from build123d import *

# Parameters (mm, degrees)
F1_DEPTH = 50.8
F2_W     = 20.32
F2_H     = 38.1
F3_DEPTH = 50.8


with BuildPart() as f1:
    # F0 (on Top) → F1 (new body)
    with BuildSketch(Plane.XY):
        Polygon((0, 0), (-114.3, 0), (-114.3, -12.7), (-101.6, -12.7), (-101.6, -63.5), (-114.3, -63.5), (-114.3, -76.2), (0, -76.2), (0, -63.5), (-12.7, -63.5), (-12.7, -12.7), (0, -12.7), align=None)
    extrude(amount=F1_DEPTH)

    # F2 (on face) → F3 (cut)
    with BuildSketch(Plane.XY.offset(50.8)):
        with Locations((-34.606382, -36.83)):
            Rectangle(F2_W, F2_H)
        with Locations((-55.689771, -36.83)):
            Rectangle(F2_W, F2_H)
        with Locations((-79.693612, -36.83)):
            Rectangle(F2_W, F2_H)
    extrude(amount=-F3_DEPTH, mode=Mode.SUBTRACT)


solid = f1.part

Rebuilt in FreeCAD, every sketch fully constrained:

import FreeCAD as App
import Part
import Sketcher
from FreeCAD import Vector
Q = App.Units.Quantity

doc = App.newDocument("Part")
params = doc.addObject("Spreadsheet::Sheet", "Params")
for row, (alias, value) in enumerate([
    ("sketch1_height", "2 in"),
    ("sketch1_width", "4.5 in"),
    ("sketch1_width2", "0.5 in"),
    ("pad1_length", "2 in"),
    ("sketch2_width", "0.8 in"),
    ("sketch2_height", "1.5 in"),
    ("pocket1_length", "2 in"),
], start=1):
    params.set(f"A{row}", alias)
    params.set(f"B{row}", "=" + value)
    params.setAlias(f"B{row}", alias)

body = doc.addObject("PartDesign::Body", "Body")

# Sketch on XY plane
sketch1 = body.newObject("Sketcher::SketchObject", "Sketch")
sketch1.AttachmentSupport = (doc.getObject("XY_Plane"), [""])
sketch1.MapMode = "FlatFace"
sketch1.addGeometry([
    Part.LineSegment(Vector(0, 0, 0), Vector(-114, 0, 0)),  # 0
    Part.LineSegment(Vector(-114, 0, 0), Vector(-114, -13, 0)),  # 1
    Part.LineSegment(Vector(-114, -13, 0), Vector(-102, -13, 0)),  # 2
    Part.LineSegment(Vector(-102, -13, 0), Vector(-102, -64, 0)),  # 3
    Part.LineSegment(Vector(-102, -64, 0), Vector(-114, -64, 0)),  # 4
    Part.LineSegment(Vector(-114, -64, 0), Vector(-114, -76, 0)),  # 5
    Part.LineSegment(Vector(-114, -76, 0), Vector(0, -76, 0)),  # 6
    Part.LineSegment(Vector(0, -76, 0), Vector(0, -64, 0)),  # 7
    Part.LineSegment(Vector(0, -64, 0), Vector(-13, -64, 0)),  # 8
    Part.LineSegment(Vector(-13, -64, 0), Vector(-13, -13, 0)),  # 9
    Part.LineSegment(Vector(-13, -13, 0), Vector(0, -13, 0)),  # 10
    Part.LineSegment(Vector(0, -13, 0), Vector(0, 0, 0)),  # 11
], False)
sketch1.addConstraint([
    Sketcher.Constraint("Coincident", 0, 2, 1, 1),
    Sketcher.Constraint("Coincident", 1, 2, 2, 1),
    Sketcher.Constraint("Coincident", 2, 2, 3, 1),
    Sketcher.Constraint("Coincident", 3, 2, 4, 1),
    Sketcher.Constraint("Coincident", 4, 2, 5, 1),
    Sketcher.Constraint("Coincident", 5, 2, 6, 1),
    Sketcher.Constraint("Coincident", 6, 2, 7, 1),
    Sketcher.Constraint("Coincident", 7, 2, 8, 1),
    Sketcher.Constraint("Coincident", 8, 2, 9, 1),
    Sketcher.Constraint("Coincident", 9, 2, 10, 1),
    Sketcher.Constraint("Coincident", 10, 2, 11, 1),
    Sketcher.Constraint("Coincident", 11, 2, 0, 1),
    Sketcher.Constraint("Horizontal", 0),
    Sketcher.Constraint("Vertical", 1),
    Sketcher.Constraint("Horizontal", 2),
    Sketcher.Constraint("Vertical", 3),
    Sketcher.Constraint("Horizontal", 4),
    Sketcher.Constraint("Vertical", 5),
    Sketcher.Constraint("Horizontal", 6),
    Sketcher.Constraint("Vertical", 7),
    Sketcher.Constraint("Horizontal", 8),
    Sketcher.Constraint("Vertical", 9),
    Sketcher.Constraint("Horizontal", 10),
    Sketcher.Constraint("Vertical", 11),
    Sketcher.Constraint("Coincident", 11, 2, -1, 1),
    Sketcher.Constraint("PointOnObject", 6, 2, -2),
    Sketcher.Constraint("Horizontal", 4, 2, 7, 2),
    Sketcher.Constraint("Horizontal", 2, 2, 9, 2),
    Sketcher.Constraint("Vertical", 1, 2, 4, 2),
    Sketcher.Constraint("Equal", 4, 8),
    Sketcher.Constraint("Equal", 10, 1),
    Sketcher.Constraint("Equal", 1, 5),
    Sketcher.Constraint("DistanceY", 3, 2, 3, 1, Q("2 in")),
    Sketcher.Constraint("DistanceX", 0, 2, 0, 1, Q("4.5 in")),
    Sketcher.Constraint("DistanceX", 2, 1, 2, 2, Q("0.5 in")),
])
sketch1.setExpression("Constraints[32]", "Params.sketch1_height")
sketch1.setExpression("Constraints[33]", "Params.sketch1_width")
sketch1.setExpression("Constraints[34]", "Params.sketch1_width2")
pad1 = body.newObject("PartDesign::Pad", "Pad")
pad1.Profile = sketch1
pad1.setExpression("Length", "Params.pad1_length")

# Sketch on XY plane
sketch2 = body.newObject("Sketcher::SketchObject", "Sketch001")
sketch2.AttachmentSupport = (doc.getObject("XY_Plane"), [""])
sketch2.MapMode = "FlatFace"
sketch2.AttachmentOffset = App.Placement(Vector(0, 0, 2 * 25.4), App.Rotation())
sketch2.addGeometry([
    Part.LineSegment(Vector(-45, -18, 0), Vector(-45, -56, 0)),  # 0
    Part.LineSegment(Vector(-45, -56, 0), Vector(-24, -56, 0)),  # 1
    Part.LineSegment(Vector(-24, -56, 0), Vector(-24, -18, 0)),  # 2
    Part.LineSegment(Vector(-24, -18, 0), Vector(-45, -18, 0)),  # 3
    Part.LineSegment(Vector(-66, -18, 0), Vector(-66, -56, 0)),  # 4
    Part.LineSegment(Vector(-66, -56, 0), Vector(-46, -56, 0)),  # 5
    Part.LineSegment(Vector(-46, -56, 0), Vector(-46, -18, 0)),  # 6
    Part.LineSegment(Vector(-46, -18, 0), Vector(-66, -18, 0)),  # 7
    Part.LineSegment(Vector(-90, -18, 0), Vector(-90, -56, 0)),  # 8
    Part.LineSegment(Vector(-90, -56, 0), Vector(-70, -56, 0)),  # 9
    Part.LineSegment(Vector(-70, -56, 0), Vector(-70, -18, 0)),  # 10
    Part.LineSegment(Vector(-70, -18, 0), Vector(-90, -18, 0)),  # 11
], False)
sketch2.addConstraint([
    Sketcher.Constraint("Coincident", 0, 2, 1, 1),
    Sketcher.Constraint("Coincident", 1, 2, 2, 1),
    Sketcher.Constraint("Coincident", 2, 2, 3, 1),
    Sketcher.Constraint("Coincident", 3, 2, 0, 1),
    Sketcher.Constraint("Coincident", 4, 2, 5, 1),
    Sketcher.Constraint("Coincident", 5, 2, 6, 1),
    Sketcher.Constraint("Coincident", 6, 2, 7, 1),
    Sketcher.Constraint("Coincident", 7, 2, 4, 1),
    Sketcher.Constraint("Coincident", 8, 2, 9, 1),
    Sketcher.Constraint("Coincident", 9, 2, 10, 1),
    Sketcher.Constraint("Coincident", 10, 2, 11, 1),
    Sketcher.Constraint("Coincident", 11, 2, 8, 1),
    Sketcher.Constraint("Vertical", 0),
    Sketcher.Constraint("Horizontal", 1),
    Sketcher.Constraint("Vertical", 2),
    Sketcher.Constraint("Horizontal", 3),
    Sketcher.Constraint("Vertical", 4),
    Sketcher.Constraint("Horizontal", 5),
    Sketcher.Constraint("Vertical", 6),
    Sketcher.Constraint("Horizontal", 7),
    Sketcher.Constraint("Vertical", 8),
    Sketcher.Constraint("Horizontal", 9),
    Sketcher.Constraint("Vertical", 10),
    Sketcher.Constraint("Horizontal", 11),
    Sketcher.Constraint("Horizontal", 1, 2, 4, 2),
    Sketcher.Constraint("Horizontal", 3, 2, 6, 2),
    Sketcher.Constraint("Horizontal", 5, 2, 8, 2),
    Sketcher.Constraint("Horizontal", 7, 2, 10, 2),
    Sketcher.Constraint("Equal", 3, 5),
    Sketcher.Constraint("Equal", 7, 9),
    Sketcher.Constraint("DistanceX", 1, 1, 1, 2, Q("0.8 in")),
    Sketcher.Constraint("DistanceY", 0, 2, 0, 1, Q("1.5 in")),
    Sketcher.Constraint("DistanceY", 0, 2, -1, 1, Q("2.2 in")),
    Sketcher.Constraint("DistanceX", 1, 2, -1, 1, Q("24.446382 mm")),
    Sketcher.Constraint("DistanceX", 4, 2, -1, 1, Q("65.849771 mm")),
    Sketcher.Constraint("DistanceX", 8, 2, -1, 1, Q("89.853612 mm")),
])
sketch2.setExpression("Constraints[30]", "Params.sketch2_width")
sketch2.setExpression("Constraints[31]", "Params.sketch2_height")
pocket1 = body.newObject("PartDesign::Pocket", "Pocket")
pocket1.Profile = sketch2
pocket1.setExpression("Length", "Params.pocket1_length")

doc.recompute()
